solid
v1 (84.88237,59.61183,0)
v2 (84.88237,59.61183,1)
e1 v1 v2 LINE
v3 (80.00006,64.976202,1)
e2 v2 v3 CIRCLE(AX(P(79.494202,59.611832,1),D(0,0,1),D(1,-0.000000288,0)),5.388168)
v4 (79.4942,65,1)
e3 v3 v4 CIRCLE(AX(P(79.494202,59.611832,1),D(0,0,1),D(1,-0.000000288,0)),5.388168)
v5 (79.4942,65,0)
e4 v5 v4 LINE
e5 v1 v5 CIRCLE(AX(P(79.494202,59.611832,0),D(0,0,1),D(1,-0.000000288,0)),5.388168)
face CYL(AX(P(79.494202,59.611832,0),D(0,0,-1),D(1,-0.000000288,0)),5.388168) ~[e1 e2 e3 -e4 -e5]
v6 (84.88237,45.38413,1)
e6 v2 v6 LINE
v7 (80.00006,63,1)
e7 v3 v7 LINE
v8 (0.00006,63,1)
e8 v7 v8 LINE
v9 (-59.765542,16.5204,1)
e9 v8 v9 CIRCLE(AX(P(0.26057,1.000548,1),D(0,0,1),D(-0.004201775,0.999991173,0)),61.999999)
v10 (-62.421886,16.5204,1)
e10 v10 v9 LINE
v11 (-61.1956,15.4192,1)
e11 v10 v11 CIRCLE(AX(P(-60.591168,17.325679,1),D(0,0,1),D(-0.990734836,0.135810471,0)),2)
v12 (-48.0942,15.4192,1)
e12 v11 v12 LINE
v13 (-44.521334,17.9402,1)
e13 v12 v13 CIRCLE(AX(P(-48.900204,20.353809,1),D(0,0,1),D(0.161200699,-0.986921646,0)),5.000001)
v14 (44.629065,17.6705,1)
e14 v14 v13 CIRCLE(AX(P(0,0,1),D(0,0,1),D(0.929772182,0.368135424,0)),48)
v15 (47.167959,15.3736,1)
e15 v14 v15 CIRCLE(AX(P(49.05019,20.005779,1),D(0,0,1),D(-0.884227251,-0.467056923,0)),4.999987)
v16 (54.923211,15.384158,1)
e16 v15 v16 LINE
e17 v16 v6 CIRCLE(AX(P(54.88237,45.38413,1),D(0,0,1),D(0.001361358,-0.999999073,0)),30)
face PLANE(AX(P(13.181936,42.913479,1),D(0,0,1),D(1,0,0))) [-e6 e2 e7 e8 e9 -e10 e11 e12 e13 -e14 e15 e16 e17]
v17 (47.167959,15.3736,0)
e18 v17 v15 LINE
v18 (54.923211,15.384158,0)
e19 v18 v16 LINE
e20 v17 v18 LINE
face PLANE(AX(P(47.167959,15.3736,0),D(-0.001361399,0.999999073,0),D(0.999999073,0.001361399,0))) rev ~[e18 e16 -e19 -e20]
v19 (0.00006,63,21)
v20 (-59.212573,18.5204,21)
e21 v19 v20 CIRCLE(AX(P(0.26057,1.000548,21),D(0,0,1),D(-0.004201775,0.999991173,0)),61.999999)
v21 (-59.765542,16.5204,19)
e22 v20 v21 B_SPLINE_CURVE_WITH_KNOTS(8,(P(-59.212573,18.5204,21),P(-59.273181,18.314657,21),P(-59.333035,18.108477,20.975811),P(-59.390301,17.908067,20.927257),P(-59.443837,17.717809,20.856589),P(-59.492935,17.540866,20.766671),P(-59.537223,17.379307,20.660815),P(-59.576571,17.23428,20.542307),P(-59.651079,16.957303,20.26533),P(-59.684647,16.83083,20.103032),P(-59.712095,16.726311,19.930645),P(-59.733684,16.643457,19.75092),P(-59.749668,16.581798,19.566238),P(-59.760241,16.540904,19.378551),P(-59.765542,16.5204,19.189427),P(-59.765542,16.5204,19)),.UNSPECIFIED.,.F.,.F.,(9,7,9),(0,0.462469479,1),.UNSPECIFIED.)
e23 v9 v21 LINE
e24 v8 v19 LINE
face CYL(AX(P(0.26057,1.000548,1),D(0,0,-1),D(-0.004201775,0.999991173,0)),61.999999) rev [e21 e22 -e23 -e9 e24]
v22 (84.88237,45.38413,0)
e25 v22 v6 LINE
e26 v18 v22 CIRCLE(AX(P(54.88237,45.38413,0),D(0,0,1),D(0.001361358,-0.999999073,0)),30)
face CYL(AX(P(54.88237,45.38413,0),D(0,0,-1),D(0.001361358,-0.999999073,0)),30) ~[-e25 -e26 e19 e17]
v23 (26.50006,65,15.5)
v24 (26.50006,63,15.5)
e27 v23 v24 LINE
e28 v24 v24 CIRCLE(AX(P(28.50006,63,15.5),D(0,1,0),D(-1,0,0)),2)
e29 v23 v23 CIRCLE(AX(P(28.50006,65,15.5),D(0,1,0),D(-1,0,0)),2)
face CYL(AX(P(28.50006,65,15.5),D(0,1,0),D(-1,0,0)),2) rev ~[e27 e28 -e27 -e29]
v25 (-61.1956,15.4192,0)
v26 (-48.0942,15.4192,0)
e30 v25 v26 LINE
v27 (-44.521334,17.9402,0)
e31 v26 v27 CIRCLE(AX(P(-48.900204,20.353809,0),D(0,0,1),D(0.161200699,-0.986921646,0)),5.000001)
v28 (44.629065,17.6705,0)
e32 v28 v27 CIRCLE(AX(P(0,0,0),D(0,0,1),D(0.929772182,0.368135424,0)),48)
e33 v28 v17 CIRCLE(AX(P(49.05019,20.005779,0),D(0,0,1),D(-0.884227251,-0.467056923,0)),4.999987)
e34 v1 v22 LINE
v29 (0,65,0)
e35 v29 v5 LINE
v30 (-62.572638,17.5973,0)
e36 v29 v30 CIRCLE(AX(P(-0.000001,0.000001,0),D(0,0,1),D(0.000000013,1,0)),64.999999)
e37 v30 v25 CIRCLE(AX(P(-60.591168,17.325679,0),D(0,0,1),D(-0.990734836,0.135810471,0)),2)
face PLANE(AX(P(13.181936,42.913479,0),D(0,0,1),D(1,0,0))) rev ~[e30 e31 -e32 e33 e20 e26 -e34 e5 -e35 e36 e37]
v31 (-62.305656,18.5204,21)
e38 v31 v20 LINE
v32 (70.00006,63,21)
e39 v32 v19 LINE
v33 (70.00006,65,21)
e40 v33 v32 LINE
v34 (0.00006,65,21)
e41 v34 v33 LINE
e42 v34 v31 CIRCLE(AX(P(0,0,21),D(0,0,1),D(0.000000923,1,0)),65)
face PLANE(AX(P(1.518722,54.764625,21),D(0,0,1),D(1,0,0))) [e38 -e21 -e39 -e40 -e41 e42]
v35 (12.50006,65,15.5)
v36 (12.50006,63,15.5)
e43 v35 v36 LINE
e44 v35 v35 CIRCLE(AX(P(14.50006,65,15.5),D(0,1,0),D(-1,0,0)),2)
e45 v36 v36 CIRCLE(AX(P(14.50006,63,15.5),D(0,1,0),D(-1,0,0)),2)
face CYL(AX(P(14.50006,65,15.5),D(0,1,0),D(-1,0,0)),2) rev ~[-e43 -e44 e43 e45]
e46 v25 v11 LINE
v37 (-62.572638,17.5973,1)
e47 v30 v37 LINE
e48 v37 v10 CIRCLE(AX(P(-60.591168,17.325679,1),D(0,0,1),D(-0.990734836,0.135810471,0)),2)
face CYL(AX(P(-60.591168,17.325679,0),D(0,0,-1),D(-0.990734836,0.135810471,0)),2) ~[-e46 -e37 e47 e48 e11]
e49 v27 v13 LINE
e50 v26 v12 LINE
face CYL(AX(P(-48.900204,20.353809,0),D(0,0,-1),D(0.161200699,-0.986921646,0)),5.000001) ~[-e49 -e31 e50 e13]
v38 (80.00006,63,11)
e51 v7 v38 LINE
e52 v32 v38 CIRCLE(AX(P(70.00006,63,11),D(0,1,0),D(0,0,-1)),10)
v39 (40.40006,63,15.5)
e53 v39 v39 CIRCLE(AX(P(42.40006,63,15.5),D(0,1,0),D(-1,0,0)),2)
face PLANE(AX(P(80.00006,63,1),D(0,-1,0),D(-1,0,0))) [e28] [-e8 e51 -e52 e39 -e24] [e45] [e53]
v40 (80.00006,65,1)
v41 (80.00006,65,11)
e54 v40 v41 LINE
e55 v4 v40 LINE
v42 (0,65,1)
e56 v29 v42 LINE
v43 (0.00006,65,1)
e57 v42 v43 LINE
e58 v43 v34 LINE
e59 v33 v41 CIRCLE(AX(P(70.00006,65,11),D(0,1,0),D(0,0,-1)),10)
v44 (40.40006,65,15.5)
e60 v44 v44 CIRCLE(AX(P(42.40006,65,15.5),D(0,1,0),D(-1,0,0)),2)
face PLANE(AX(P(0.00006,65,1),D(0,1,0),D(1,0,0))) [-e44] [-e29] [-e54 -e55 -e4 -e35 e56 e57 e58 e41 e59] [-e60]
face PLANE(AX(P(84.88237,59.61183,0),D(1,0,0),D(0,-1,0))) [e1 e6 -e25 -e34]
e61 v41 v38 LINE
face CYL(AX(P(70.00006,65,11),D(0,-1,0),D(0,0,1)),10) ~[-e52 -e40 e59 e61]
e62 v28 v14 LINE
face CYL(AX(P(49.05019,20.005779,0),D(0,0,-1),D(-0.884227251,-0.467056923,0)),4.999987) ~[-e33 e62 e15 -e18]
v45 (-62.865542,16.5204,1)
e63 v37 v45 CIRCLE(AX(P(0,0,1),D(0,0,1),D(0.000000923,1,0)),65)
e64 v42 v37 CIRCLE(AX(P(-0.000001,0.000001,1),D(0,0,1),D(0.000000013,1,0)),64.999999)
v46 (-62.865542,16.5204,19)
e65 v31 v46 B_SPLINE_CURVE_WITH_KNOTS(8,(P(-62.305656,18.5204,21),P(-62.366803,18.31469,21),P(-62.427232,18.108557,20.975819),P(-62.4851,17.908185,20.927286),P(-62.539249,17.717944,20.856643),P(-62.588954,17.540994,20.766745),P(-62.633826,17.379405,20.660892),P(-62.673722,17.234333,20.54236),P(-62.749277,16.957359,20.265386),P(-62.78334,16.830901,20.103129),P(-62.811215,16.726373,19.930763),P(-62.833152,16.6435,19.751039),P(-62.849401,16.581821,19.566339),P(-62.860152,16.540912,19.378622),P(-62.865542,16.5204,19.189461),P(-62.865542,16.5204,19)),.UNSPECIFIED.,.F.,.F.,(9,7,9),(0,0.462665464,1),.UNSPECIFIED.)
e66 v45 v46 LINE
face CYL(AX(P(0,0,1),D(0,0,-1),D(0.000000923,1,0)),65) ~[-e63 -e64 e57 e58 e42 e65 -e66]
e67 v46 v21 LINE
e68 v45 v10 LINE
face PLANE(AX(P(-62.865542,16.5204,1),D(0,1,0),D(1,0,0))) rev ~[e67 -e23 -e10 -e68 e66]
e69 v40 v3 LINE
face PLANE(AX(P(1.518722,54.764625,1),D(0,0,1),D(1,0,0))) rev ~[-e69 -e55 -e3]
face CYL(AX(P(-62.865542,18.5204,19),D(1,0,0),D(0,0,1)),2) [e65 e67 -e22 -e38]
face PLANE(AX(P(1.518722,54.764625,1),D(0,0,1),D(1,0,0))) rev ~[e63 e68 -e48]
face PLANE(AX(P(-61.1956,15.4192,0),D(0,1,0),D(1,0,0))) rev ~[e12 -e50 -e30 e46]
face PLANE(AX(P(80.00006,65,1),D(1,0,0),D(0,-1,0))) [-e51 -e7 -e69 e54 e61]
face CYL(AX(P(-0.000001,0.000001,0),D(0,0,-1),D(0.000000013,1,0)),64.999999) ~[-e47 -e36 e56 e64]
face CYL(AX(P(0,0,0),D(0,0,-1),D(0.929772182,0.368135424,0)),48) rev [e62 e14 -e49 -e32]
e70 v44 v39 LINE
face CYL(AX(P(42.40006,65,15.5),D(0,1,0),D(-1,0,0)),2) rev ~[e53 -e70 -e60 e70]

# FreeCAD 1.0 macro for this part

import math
import FreeCAD as App
import Part
import Sketcher
Q = App.Units.Quantity


def edges_at(feature, points):
    """Names of the edges that pass closest to the given points."""
    edges = feature.Shape.Edges
    near = lambda p: min(range(len(edges)), key=lambda i: edges[i].distToShape(Part.Vertex(*p))[0])
    return sorted({f"Edge{near(p) + 1}" for p in points})

doc = App.newDocument("Part")
body = doc.addObject("PartDesign::Body", "Body")

sketch1 = doc.addObject("Sketcher::SketchObject", "Sketch")
body.addObject(sketch1)
sketch1.AttachmentSupport = (doc.XY_Plane, [""])
sketch1.MapMode = "FlatFace"
sketch1.addGeometry([
    Part.ArcOfCircle(Part.Circle(App.Vector(-0.000001, 0.000001, 0), App.Vector(0, 0, 1), 64.999999), math.radians(89.999999), math.radians(164.292427)),
    Part.ArcOfCircle(Part.Circle(App.Vector(-60.591168, 17.325679, 0), App.Vector(0, 0, 1), 2), math.radians(172.194512), math.radians(252.40926)),
    Part.LineSegment(App.Vector(-61.1956, 15.4192, 0), App.Vector(-48.0942, 15.4192, 0)),
    Part.ArcOfCircle(Part.Circle(App.Vector(-48.900204, 20.353809, 0), App.Vector(0, 0, 1), 5.000001), math.radians(-80.723404), math.radians(-28.863313)),
    Part.ArcOfCircle(Part.Circle(App.Vector(0, 0, 0), App.Vector(0, 0, 1), 48), math.radians(21.60067), math.radians(158.052666)),
    Part.ArcOfCircle(Part.Circle(App.Vector(49.05019, 20.005779, 0), App.Vector(0, 0, 1), 4.999987), math.radians(-152.156576), math.radians(-112.113784)),
    Part.LineSegment(App.Vector(47.167959, 15.3736, 0), App.Vector(54.923211, 15.384158, 0)),
    Part.ArcOfCircle(Part.Circle(App.Vector(54.88237, 45.38413, 0), App.Vector(0, 0, 1), 30), math.radians(-89.922), math.radians(0)),
    Part.LineSegment(App.Vector(84.88237, 45.38413, 0), App.Vector(84.88237, 59.61183, 0)),
    Part.ArcOfCircle(Part.Circle(App.Vector(79.494202, 59.611832, 0), App.Vector(0, 0, 1), 5.388168), math.radians(-0.000017), math.radians(90.000017)),
    Part.LineSegment(App.Vector(79.4942, 65, 0), App.Vector(0, 65, 0)),
], False)
sketch1.addConstraint([
    Sketcher.Constraint("Coincident", 0, 2, 1, 1),
    Sketcher.Constraint("Coincident", 1, 2, 2, 1),
    Sketcher.Constraint("Coincident", 2, 2, 3, 1),
    Sketcher.Constraint("Coincident", 3, 2, 4, 2),
    Sketcher.Constraint("Coincident", 4, 1, 5, 1),
    Sketcher.Constraint("Coincident", 5, 2, 6, 1),
    Sketcher.Constraint("Tangent", 6, 2, 7, 1),
    Sketcher.Constraint("Tangent", 7, 2, 8, 1),
    Sketcher.Constraint("Tangent", 8, 2, 9, 1),
    Sketcher.Constraint("Tangent", 9, 2, 10, 1),
    Sketcher.Constraint("Tangent", 10, 2, 0, 1),
    Sketcher.Constraint("Horizontal", 2),
    Sketcher.Constraint("Vertical", 8),
    Sketcher.Constraint("Horizontal", 10),
    Sketcher.Constraint("Coincident", 0, 3, -1, 1),
    Sketcher.Constraint("Coincident", 4, 3, -1, 1),
    Sketcher.Constraint("Radius", 0, Q("64.999999 mm")),
    Sketcher.Constraint("Radius", 1, Q("2 mm")),
    Sketcher.Constraint("Radius", 3, Q("5.000001 mm")),
    Sketcher.Constraint("Radius", 4, Q("48 mm")),
    Sketcher.Constraint("Radius", 7, Q("30 mm")),
    Sketcher.Constraint("Radius", 9, Q("5.388168 mm")),
    Sketcher.Constraint("DistanceX", 2, 1, 2, 2, Q("13.1014 mm")),
    Sketcher.Constraint("DistanceX", 10, 2, 10, 1, Q("79.4942 mm")),
    Sketcher.Constraint("DistanceY", 8, 1, 8, 2, Q("14.2277 mm")),
    Sketcher.Constraint("Radius", 5, Q("4.999987 mm")),
    Sketcher.Constraint("DistanceY", 2, 2, 3, 2, Q("2.521 mm")),
    Sketcher.Constraint("DistanceY", -1, 1, 0, 2, Q("17.5973 mm")),
    Sketcher.Constraint("DistanceX", 1, 2, -1, 1, Q("61.1956 mm")),
    Sketcher.Constraint("DistanceY", -1, 1, 1, 2, Q("15.4192 mm")),
    Sketcher.Constraint("DistanceY", -1, 1, 4, 1, Q("17.6705 mm")),
    Sketcher.Constraint("DistanceY", -1, 1, 5, 2, Q("15.3736 mm")),
    Sketcher.Constraint("DistanceY", 1, 3, 5, 3, Q("2.6801 mm")),
])
pad1 = doc.addObject("PartDesign::Pad", "Pad")
body.addObject(pad1)
pad1.Profile = sketch1
pad1.Length = 1

sketch2 = doc.addObject("Sketcher::SketchObject", "Sketch001")
body.addObject(sketch2)
sketch2.AttachmentSupport = (doc.XY_Plane, [""])
sketch2.MapMode = "FlatFace"
sketch2.AttachmentOffset = App.Placement(App.Vector(0, 0, 1), App.Rotation())
sketch2.addGeometry([
    Part.ArcOfCircle(Part.Circle(App.Vector(0, 0, 0), App.Vector(0, 0, 1), 65), math.radians(89.999947), math.radians(165.276183)),
    Part.LineSegment(App.Vector(-62.865542, 16.5204, 0), App.Vector(-59.765542, 16.5204, 0)),
    Part.ArcOfCircle(Part.Circle(App.Vector(0.26057, 1.000548, 0), App.Vector(0, 0, 1), 62), math.radians(90.240745), math.radians(165.503539)),
    Part.LineSegment(App.Vector(0.00006, 63, 0), App.Vector(80.00006, 63, 0)),
    Part.LineSegment(App.Vector(80.00006, 63, 0), App.Vector(80.00006, 65, 0)),
    Part.LineSegment(App.Vector(80.00006, 65, 0), App.Vector(0.00006, 65, 0)),
], False)
sketch2.addConstraint([
    Sketcher.Constraint("Coincident", 0, 2, 1, 1),
    Sketcher.Constraint("Coincident", 1, 2, 2, 2),
    Sketcher.Constraint("Coincident", 2, 1, 3, 1),
    Sketcher.Constraint("Coincident", 3, 2, 4, 1),
    Sketcher.Constraint("Coincident", 4, 2, 5, 1),
    Sketcher.Constraint("Coincident", 5, 2, 0, 1),
    Sketcher.Constraint("Horizontal", 1),
    Sketcher.Constraint("Horizontal", 3),
    Sketcher.Constraint("Vertical", 4),
    Sketcher.Constraint("Horizontal", 5),
    Sketcher.Constraint("Coincident", 0, 3, -1, 1),
    Sketcher.Constraint("Radius", 0, Q("65 mm")),
    Sketcher.Constraint("Radius", 2, Q("62 mm")),
    Sketcher.Constraint("DistanceX", 3, 1, 3, 2, Q("80 mm")),
    Sketcher.Constraint("DistanceX", 5, 2, 5, 1, Q("80 mm")),
    Sketcher.Constraint("DistanceY", 4, 1, 4, 2, Q("2 mm")),
    Sketcher.Constraint("DistanceX", 1, 1, 1, 2, Q("3.1 mm")),
    Sketcher.Constraint("DistanceY", -1, 1, 0, 2, Q("16.5204 mm")),
    Sketcher.Constraint("DistanceX", 1, 2, 2, 1, Q("59.765602 mm")),
])
pad2 = doc.addObject("PartDesign::Pad", "Pad001")
body.addObject(pad2)
pad2.Profile = sketch2
pad2.Length = 20
doc.recompute()

fillet = doc.addObject("PartDesign::Fillet", "Fillet")
body.addObject(fillet)
fillet.Base = (pad2, edges_at(pad2, [(80, 64, 21)]))
fillet.Radius = 10
doc.recompute()

fillet2 = doc.addObject("PartDesign::Fillet", "Fillet001")
body.addObject(fillet2)
fillet2.Base = (fillet, edges_at(fillet, [(-61.316, 16.52, 21)]))
fillet2.Radius = 2

sketch3 = doc.addObject("Sketcher::SketchObject", "Sketch002")
body.addObject(sketch3)
sketch3.AttachmentSupport = (doc.XZ_Plane, [""])
sketch3.MapMode = "FlatFace"
sketch3.AttachmentOffset = App.Placement(App.Vector(0, 0, -65), App.Rotation())
sketch3.addGeometry([
    Part.Circle(App.Vector(42.40006, 15.5, 0), App.Vector(0, 0, 1), 2),
    Part.Circle(App.Vector(28.50006, 15.5, 0), App.Vector(0, 0, 1), 2),
    Part.Circle(App.Vector(14.50006, 15.5, 0), App.Vector(0, 0, 1), 2),
], False)
sketch3.addConstraint([
    Sketcher.Constraint("Equal", 0, 1),
    Sketcher.Constraint("Equal", 1, 2),
    Sketcher.Constraint("Horizontal", 0, 3, 1, 3),
    Sketcher.Constraint("Horizontal", 1, 3, 2, 3),
    Sketcher.Constraint("Diameter", 0, Q("4 mm")),
    Sketcher.Constraint("DistanceX", 2, 3, 1, 3, Q("14 mm")),
    Sketcher.Constraint("DistanceY", -1, 1, 0, 3, Q("15.5 mm")),
    Sketcher.Constraint("DistanceX", 1, 3, 0, 3, Q("13.9 mm")),
    Sketcher.Constraint("DistanceX", -1, 1, 0, 3, Q("42.40006 mm")),
])
pocket1 = doc.addObject("PartDesign::Pocket", "Pocket")
body.addObject(pocket1)
pocket1.Profile = sketch3
pocket1.Type = "ThroughAll"
pocket1.Reversed = True

doc.recompute()
